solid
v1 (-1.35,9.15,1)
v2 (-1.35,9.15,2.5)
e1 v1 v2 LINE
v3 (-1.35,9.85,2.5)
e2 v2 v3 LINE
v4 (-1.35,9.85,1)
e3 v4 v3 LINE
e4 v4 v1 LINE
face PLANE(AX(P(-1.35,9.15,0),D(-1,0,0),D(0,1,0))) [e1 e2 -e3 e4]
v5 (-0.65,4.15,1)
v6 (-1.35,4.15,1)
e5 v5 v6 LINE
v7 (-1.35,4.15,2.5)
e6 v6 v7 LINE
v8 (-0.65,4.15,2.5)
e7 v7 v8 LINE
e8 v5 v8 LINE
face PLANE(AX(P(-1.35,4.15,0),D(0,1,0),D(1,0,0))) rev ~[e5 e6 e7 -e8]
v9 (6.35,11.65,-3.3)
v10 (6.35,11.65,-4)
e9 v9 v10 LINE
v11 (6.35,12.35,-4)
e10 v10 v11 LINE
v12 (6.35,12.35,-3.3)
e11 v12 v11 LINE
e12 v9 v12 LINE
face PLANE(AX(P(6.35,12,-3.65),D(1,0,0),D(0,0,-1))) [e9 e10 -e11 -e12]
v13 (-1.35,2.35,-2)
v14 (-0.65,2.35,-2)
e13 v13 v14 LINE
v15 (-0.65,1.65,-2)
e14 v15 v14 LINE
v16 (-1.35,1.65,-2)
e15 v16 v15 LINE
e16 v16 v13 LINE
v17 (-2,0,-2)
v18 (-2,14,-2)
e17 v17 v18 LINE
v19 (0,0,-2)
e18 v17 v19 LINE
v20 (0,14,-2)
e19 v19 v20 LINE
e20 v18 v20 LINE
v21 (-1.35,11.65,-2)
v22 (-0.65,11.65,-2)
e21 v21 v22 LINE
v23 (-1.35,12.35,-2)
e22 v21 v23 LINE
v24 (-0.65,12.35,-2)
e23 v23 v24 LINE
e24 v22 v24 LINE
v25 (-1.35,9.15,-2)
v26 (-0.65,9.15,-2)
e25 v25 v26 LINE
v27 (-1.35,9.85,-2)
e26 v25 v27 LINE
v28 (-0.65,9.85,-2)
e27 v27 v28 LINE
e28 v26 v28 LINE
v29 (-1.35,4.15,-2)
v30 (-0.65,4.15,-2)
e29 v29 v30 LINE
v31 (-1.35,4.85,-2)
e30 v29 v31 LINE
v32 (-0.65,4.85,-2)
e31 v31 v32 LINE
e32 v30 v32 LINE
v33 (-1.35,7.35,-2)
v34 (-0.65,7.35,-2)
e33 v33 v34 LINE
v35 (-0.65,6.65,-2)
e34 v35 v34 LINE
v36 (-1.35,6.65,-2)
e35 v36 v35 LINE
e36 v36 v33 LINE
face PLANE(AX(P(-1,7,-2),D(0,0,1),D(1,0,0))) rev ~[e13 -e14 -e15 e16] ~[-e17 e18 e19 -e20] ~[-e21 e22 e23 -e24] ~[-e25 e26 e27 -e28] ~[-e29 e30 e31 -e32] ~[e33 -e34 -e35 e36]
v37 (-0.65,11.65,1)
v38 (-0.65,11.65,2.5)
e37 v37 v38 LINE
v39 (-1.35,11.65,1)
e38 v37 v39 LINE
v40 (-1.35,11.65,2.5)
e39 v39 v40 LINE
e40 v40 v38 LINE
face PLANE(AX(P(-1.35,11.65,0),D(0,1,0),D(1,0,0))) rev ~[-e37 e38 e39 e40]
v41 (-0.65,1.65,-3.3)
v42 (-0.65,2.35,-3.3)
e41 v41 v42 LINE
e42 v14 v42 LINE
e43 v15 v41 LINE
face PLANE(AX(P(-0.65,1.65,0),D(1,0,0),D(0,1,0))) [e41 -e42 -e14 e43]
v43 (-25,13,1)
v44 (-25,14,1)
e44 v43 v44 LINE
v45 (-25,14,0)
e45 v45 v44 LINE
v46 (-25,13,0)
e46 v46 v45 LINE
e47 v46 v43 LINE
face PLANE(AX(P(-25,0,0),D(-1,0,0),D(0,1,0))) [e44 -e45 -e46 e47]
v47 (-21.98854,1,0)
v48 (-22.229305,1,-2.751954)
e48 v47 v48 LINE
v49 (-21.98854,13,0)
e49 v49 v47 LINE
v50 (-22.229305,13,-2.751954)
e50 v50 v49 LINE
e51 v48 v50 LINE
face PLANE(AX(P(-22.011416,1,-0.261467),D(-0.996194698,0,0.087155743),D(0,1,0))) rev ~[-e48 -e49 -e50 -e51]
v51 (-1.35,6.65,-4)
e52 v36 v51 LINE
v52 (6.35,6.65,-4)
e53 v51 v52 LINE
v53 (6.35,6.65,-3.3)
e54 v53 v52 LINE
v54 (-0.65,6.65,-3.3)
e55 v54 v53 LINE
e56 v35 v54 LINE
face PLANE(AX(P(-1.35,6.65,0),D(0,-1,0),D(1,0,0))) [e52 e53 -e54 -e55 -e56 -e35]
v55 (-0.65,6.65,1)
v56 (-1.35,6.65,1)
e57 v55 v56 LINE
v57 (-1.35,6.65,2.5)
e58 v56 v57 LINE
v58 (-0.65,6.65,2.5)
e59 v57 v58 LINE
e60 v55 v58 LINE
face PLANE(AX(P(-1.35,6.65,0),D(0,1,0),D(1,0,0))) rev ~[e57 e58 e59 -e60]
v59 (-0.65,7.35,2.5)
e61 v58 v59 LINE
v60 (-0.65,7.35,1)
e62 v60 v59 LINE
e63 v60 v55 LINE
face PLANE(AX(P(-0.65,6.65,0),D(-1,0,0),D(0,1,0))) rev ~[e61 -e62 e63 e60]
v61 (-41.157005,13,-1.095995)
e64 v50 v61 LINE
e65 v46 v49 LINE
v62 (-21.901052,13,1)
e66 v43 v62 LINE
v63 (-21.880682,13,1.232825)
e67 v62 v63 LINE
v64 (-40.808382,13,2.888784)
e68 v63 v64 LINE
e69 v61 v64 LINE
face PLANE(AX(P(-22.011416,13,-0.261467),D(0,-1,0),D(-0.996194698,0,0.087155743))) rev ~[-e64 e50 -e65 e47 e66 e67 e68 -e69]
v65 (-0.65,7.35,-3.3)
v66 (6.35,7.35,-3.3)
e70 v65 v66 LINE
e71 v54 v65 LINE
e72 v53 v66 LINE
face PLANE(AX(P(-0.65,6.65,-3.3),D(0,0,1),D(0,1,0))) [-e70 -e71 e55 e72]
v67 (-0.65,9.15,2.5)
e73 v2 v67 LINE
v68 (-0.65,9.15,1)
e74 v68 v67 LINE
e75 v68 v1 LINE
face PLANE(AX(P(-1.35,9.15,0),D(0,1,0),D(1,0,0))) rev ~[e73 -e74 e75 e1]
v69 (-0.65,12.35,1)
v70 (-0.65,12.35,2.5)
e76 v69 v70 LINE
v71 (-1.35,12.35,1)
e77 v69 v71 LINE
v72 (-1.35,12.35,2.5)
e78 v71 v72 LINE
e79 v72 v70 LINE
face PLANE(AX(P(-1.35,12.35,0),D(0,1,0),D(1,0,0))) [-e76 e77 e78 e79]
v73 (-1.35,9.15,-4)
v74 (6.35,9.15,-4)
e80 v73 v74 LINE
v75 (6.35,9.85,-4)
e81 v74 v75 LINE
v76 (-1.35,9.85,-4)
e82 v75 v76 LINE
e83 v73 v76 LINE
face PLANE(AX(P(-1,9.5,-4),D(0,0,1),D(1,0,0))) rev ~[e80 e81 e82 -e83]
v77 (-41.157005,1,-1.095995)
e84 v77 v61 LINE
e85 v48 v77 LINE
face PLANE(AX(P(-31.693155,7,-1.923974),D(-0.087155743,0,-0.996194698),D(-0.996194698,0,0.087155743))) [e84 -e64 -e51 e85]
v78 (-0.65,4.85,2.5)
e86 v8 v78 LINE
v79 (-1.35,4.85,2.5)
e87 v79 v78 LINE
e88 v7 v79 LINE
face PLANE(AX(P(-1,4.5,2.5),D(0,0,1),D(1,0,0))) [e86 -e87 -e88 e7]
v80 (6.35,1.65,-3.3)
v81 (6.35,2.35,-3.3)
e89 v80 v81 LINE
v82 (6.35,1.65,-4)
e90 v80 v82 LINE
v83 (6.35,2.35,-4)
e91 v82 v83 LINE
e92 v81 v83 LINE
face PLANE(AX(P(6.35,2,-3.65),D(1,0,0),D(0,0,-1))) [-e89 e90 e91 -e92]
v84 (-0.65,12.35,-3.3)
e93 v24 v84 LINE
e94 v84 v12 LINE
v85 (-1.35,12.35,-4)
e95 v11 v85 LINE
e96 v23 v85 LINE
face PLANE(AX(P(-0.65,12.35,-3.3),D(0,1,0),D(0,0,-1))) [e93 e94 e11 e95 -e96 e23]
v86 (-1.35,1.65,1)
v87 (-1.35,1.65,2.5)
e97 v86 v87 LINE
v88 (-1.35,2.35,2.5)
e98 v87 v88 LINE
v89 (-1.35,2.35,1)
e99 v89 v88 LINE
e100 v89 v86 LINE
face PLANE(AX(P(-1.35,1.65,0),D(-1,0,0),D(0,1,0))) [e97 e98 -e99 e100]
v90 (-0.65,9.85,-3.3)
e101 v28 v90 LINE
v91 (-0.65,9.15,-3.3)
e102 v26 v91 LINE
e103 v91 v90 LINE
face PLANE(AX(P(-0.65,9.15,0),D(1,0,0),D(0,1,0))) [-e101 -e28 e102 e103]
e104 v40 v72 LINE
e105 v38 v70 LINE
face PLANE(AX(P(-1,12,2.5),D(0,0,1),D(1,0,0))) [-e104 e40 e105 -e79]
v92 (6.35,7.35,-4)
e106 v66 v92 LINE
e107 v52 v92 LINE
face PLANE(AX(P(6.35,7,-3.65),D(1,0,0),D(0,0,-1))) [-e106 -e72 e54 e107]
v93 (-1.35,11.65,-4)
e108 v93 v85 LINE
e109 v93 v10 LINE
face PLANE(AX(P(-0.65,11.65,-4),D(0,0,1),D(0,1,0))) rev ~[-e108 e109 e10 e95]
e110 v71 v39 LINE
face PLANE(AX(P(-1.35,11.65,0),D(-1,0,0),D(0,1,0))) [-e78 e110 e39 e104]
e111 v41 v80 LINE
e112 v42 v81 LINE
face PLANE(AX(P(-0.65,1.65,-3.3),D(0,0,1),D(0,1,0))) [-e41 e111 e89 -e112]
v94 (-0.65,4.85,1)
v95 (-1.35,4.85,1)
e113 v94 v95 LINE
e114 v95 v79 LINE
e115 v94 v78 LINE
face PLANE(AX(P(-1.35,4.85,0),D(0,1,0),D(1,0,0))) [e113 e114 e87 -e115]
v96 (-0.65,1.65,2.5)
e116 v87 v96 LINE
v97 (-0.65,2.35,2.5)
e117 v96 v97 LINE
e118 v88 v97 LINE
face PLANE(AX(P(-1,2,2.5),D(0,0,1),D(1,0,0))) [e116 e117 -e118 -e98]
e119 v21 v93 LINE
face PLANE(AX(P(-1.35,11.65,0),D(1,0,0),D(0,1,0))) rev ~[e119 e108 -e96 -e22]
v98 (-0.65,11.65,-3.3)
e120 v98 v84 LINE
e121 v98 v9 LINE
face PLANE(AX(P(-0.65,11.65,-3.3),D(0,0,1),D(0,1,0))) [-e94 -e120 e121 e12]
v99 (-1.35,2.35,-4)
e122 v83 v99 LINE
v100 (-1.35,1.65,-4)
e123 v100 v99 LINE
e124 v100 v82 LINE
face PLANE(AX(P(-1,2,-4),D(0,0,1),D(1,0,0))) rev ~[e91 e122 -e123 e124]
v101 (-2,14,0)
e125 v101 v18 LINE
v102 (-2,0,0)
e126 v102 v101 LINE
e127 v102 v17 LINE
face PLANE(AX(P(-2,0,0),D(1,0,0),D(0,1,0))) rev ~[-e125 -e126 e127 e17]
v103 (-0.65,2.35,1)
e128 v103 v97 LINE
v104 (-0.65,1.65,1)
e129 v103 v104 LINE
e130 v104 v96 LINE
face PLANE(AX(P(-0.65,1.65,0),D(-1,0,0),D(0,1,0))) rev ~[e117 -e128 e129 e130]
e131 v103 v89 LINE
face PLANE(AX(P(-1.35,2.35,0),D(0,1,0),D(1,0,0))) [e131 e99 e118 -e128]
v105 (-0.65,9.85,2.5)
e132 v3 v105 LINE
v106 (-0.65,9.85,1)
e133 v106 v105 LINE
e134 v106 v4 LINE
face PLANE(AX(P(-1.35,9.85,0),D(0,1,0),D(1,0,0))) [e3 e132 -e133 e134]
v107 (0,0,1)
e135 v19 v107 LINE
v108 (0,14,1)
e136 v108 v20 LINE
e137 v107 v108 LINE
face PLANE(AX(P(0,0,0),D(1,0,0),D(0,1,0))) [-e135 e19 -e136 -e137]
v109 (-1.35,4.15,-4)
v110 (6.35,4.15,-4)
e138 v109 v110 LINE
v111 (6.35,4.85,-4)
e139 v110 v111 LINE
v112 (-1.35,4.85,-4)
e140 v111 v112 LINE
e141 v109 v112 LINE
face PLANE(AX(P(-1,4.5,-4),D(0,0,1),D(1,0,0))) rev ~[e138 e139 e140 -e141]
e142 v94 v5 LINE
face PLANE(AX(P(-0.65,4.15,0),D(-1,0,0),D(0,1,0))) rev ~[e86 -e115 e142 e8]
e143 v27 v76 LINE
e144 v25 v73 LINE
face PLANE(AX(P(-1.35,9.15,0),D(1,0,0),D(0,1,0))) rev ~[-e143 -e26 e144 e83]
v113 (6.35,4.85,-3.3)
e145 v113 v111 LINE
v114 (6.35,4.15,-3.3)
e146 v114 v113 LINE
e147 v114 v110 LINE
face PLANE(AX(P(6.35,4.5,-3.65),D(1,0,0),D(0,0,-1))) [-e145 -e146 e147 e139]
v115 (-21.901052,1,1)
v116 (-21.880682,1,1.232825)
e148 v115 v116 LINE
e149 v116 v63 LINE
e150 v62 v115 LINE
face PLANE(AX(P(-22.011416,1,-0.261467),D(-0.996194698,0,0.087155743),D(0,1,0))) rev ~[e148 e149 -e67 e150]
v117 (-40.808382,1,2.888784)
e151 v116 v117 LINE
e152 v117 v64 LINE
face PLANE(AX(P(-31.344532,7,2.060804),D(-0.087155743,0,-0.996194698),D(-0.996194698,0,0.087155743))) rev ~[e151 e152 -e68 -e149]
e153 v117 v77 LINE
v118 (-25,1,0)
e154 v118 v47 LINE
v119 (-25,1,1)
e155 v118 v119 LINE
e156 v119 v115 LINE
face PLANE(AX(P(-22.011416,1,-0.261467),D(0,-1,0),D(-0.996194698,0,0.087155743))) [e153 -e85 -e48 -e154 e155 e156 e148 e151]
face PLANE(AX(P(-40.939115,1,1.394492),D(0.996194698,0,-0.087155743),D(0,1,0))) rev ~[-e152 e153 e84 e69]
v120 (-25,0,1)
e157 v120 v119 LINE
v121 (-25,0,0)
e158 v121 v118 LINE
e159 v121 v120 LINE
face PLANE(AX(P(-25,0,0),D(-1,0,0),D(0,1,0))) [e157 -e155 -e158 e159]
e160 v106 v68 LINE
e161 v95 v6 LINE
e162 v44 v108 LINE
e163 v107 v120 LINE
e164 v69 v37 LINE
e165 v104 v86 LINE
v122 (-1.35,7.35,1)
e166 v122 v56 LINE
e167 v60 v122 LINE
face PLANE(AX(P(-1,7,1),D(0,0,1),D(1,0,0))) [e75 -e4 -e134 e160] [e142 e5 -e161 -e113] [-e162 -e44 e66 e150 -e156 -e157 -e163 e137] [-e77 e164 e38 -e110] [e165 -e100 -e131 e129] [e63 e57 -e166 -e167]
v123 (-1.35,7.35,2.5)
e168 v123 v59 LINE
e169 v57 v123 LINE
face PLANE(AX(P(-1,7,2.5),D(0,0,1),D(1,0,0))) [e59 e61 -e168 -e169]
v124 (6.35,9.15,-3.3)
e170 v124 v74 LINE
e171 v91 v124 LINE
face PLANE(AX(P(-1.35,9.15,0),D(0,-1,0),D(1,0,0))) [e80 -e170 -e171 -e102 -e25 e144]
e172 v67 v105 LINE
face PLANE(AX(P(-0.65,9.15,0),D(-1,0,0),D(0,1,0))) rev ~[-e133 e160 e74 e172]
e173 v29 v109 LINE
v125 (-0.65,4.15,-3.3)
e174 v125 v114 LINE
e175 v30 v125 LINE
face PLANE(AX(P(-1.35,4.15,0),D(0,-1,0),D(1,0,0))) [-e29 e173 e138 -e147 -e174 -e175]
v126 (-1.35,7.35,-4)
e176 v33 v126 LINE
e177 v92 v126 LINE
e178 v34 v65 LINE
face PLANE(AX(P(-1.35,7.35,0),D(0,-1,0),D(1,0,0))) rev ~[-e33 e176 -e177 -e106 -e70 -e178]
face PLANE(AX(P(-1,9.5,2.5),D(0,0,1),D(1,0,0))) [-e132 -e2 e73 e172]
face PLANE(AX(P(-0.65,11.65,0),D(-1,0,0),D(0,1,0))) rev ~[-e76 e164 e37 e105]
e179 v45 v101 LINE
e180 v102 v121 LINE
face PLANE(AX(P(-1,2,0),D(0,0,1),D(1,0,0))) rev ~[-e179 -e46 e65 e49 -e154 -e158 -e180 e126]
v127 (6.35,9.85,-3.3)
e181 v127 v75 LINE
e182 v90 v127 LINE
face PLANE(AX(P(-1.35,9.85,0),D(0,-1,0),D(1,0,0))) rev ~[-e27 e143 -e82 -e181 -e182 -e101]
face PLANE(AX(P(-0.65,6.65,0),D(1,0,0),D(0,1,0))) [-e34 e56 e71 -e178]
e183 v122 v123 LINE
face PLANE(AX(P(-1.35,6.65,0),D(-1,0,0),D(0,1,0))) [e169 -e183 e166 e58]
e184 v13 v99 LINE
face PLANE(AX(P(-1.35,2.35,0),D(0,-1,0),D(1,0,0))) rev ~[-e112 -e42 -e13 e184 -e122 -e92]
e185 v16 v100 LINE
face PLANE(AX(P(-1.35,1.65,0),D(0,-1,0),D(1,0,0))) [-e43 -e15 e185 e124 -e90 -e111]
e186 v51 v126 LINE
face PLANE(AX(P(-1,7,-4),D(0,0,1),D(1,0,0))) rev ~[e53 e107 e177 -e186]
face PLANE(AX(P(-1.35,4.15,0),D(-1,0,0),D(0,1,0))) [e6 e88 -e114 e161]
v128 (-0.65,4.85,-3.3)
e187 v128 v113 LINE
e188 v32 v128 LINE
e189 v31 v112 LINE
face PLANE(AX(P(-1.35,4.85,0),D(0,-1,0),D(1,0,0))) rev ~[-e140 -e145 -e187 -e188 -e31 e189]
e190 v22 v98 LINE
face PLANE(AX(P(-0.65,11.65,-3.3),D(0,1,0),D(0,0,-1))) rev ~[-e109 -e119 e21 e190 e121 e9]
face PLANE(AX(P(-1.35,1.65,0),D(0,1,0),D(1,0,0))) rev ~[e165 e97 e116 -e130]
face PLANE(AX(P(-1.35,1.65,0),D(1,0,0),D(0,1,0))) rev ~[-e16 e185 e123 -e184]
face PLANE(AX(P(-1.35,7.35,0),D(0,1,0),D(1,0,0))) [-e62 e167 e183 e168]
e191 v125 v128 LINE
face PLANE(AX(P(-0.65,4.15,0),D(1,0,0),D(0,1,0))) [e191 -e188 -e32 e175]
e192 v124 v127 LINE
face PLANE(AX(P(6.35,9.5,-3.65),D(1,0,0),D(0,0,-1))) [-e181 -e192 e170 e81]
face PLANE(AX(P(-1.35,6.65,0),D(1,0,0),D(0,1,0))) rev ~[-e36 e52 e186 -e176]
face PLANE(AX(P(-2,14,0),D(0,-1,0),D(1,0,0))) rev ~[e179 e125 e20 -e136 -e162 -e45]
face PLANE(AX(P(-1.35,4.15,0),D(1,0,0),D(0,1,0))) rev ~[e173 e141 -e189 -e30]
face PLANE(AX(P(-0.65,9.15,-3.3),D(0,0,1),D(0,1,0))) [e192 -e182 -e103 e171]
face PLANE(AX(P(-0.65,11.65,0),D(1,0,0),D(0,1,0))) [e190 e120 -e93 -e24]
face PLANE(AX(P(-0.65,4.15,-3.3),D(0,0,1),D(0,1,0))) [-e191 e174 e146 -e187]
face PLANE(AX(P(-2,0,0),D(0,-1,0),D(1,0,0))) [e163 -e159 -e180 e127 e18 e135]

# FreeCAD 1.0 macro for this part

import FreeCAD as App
import Part
import Sketcher
from FreeCAD import Vector

doc = App.newDocument("Part")
body = doc.addObject("PartDesign::Body", "Body")

# Sketch on XY plane
sketch1 = body.newObject("Sketcher::SketchObject", "Sketch")
sketch1.AttachmentSupport = (doc.getObject("XY_Plane"), [""])
sketch1.MapMode = "FlatFace"
sketch1.addGeometry([
    Part.LineSegment(Vector(-25, 14, 0), Vector(-25, 0, 0)),
    Part.LineSegment(Vector(-25, 0, 0), Vector(0, 0, 0)),
    Part.LineSegment(Vector(0, 0, 0), Vector(0, 14, 0)),
    Part.LineSegment(Vector(0, 14, 0), Vector(-25, 14, 0)),
], False)
sketch1.addConstraint([
    Sketcher.Constraint("Coincident", 0, 2, 1, 1),
    Sketcher.Constraint("Coincident", 1, 2, 2, 1),
    Sketcher.Constraint("Coincident", 2, 2, 3, 1),
    Sketcher.Constraint("Coincident", 3, 2, 0, 1),
    Sketcher.Constraint("Vertical", 0),
    Sketcher.Constraint("Horizontal", 1),
    Sketcher.Constraint("Vertical", 2),
    Sketcher.Constraint("Horizontal", 3),
    Sketcher.Constraint("Coincident", 1, 2, -1, 1),
    Sketcher.Constraint("DistanceX", 1, 1, 1, 2, 25.0),
    Sketcher.Constraint("DistanceY", 0, 2, 0, 1, 14.0),
])
pad1 = body.newObject("PartDesign::Pad", "Pad")
pad1.Profile = sketch1
pad1.Length = 1

# Sketch on XY plane
sketch2 = body.newObject("Sketcher::SketchObject", "Sketch001")
sketch2.AttachmentSupport = (doc.getObject("XY_Plane"), [""])
sketch2.MapMode = "FlatFace"
sketch2.addGeometry([
    Part.LineSegment(Vector(-2, 14, 0), Vector(-2, 0, 0)),  # 0
    Part.LineSegment(Vector(-2, 0, 0), Vector(0, 0, 0)),  # 1
    Part.LineSegment(Vector(0, 0, 0), Vector(0, 14, 0)),  # 2
    Part.LineSegment(Vector(0, 14, 0), Vector(-2, 14, 0)),  # 3
    Part.LineSegment(Vector(-0.7, 1.6, 0), Vector(-1.4, 1.6, 0)),  # 4
    Part.LineSegment(Vector(-1.4, 1.6, 0), Vector(-1.4, 2.4, 0)),  # 5
    Part.LineSegment(Vector(-1.4, 2.4, 0), Vector(-0.7, 2.4, 0)),  # 6
    Part.LineSegment(Vector(-0.7, 2.4, 0), Vector(-0.7, 1.6, 0)),  # 7
    Part.LineSegment(Vector(-0.7, 4.2, 0), Vector(-1.4, 4.2, 0)),  # 8
    Part.LineSegment(Vector(-1.4, 4.2, 0), Vector(-1.4, 4.8, 0)),  # 9
    Part.LineSegment(Vector(-1.4, 4.8, 0), Vector(-0.7, 4.8, 0)),  # 10
    Part.LineSegment(Vector(-0.7, 4.8, 0), Vector(-0.7, 4.2, 0)),  # 11
    Part.LineSegment(Vector(-0.7, 6.7, 0), Vector(-1.4, 6.7, 0)),  # 12
    Part.LineSegment(Vector(-1.4, 6.7, 0), Vector(-1.4, 7.3, 0)),  # 13
    Part.LineSegment(Vector(-1.4, 7.3, 0), Vector(-0.7, 7.3, 0)),  # 14
    Part.LineSegment(Vector(-0.7, 7.3, 0), Vector(-0.7, 6.7, 0)),  # 15
    Part.LineSegment(Vector(-0.7, 9.2, 0), Vector(-1.4, 9.2, 0)),  # 16
    Part.LineSegment(Vector(-1.4, 9.2, 0), Vector(-1.4, 9.8, 0)),  # 17
    Part.LineSegment(Vector(-1.4, 9.8, 0), Vector(-0.7, 9.8, 0)),  # 18
    Part.LineSegment(Vector(-0.7, 9.8, 0), Vector(-0.7, 9.2, 0)),  # 19
    Part.LineSegment(Vector(-0.7, 11.7, 0), Vector(-1.4, 11.7, 0)),  # 20
    Part.LineSegment(Vector(-1.4, 11.7, 0), Vector(-1.4, 12.3, 0)),  # 21
    Part.LineSegment(Vector(-1.4, 12.3, 0), Vector(-0.7, 12.3, 0)),  # 22
    Part.LineSegment(Vector(-0.7, 12.3, 0), Vector(-0.7, 11.7, 0)),  # 23
], False)
sketch2.addConstraint([
    Sketcher.Constraint("Coincident", 0, 2, 1, 1),
    Sketcher.Constraint("Coincident", 1, 2, 2, 1),
    Sketcher.Constraint("Coincident", 2, 2, 3, 1),
    Sketcher.Constraint("Coincident", 3, 2, 0, 1),
    Sketcher.Constraint("Coincident", 4, 2, 5, 1),
    Sketcher.Constraint("Coincident", 5, 2, 6, 1),
    Sketcher.Constraint("Coincident", 6, 2, 7, 1),
    Sketcher.Constraint("Coincident", 7, 2, 4, 1),
    Sketcher.Constraint("Coincident", 8, 2, 9, 1),
    Sketcher.Constraint("Coincident", 9, 2, 10, 1),
    Sketcher.Constraint("Coincident", 10, 2, 11, 1),
    Sketcher.Constraint("Coincident", 11, 2, 8, 1),
    Sketcher.Constraint("Coincident", 12, 2, 13, 1),
    Sketcher.Constraint("Coincident", 13, 2, 14, 1),
    Sketcher.Constraint("Coincident", 14, 2, 15, 1),
    Sketcher.Constraint("Coincident", 15, 2, 12, 1),
    Sketcher.Constraint("Coincident", 16, 2, 17, 1),
    Sketcher.Constraint("Coincident", 17, 2, 18, 1),
    Sketcher.Constraint("Coincident", 18, 2, 19, 1),
    Sketcher.Constraint("Coincident", 19, 2, 16, 1),
    Sketcher.Constraint("Coincident", 20, 2, 21, 1),
    Sketcher.Constraint("Coincident", 21, 2, 22, 1),
    Sketcher.Constraint("Coincident", 22, 2, 23, 1),
    Sketcher.Constraint("Coincident", 23, 2, 20, 1),
    Sketcher.Constraint("Vertical", 0),
    Sketcher.Constraint("Horizontal", 1),
    Sketcher.Constraint("Vertical", 2),
    Sketcher.Constraint("Horizontal", 3),
    Sketcher.Constraint("Horizontal", 4),
    Sketcher.Constraint("Vertical", 5),
    Sketcher.Constraint("Horizontal", 6),
    Sketcher.Constraint("Vertical", 7),
    Sketcher.Constraint("Horizontal", 8),
    Sketcher.Constraint("Vertical", 9),
    Sketcher.Constraint("Horizontal", 10),
    Sketcher.Constraint("Vertical", 11),
    Sketcher.Constraint("Horizontal", 12),
    Sketcher.Constraint("Vertical", 13),
    Sketcher.Constraint("Horizontal", 14),
    Sketcher.Constraint("Vertical", 15),
    Sketcher.Constraint("Horizontal", 16),
    Sketcher.Constraint("Vertical", 17),
    Sketcher.Constraint("Horizontal", 18),
    Sketcher.Constraint("Vertical", 19),
    Sketcher.Constraint("Horizontal", 20),
    Sketcher.Constraint("Vertical", 21),
    Sketcher.Constraint("Horizontal", 22),
    Sketcher.Constraint("Vertical", 23),
    Sketcher.Constraint("Coincident", 1, 2, -1, 1),
    Sketcher.Constraint("Vertical", 5, 2, 8, 2),
    Sketcher.Constraint("Vertical", 7, 2, 10, 2),
    Sketcher.Constraint("Vertical", 9, 2, 12, 2),
    Sketcher.Constraint("Vertical", 11, 2, 14, 2),
    Sketcher.Constraint("Vertical", 13, 2, 16, 2),
    Sketcher.Constraint("Vertical", 15, 2, 18, 2),
    Sketcher.Constraint("Vertical", 17, 2, 20, 2),
    Sketcher.Constraint("Vertical", 19, 2, 22, 2),
    Sketcher.Constraint("Equal", 22, 5),
    Sketcher.Constraint("Equal", 7, 9),
    Sketcher.Constraint("Equal", 11, 13),
    Sketcher.Constraint("Equal", 15, 17),
    Sketcher.Constraint("Equal", 19, 21),
    Sketcher.Constraint("DistanceX", 1, 1, 1, 2, 2.0),
    Sketcher.Constraint("DistanceY", 0, 2, 0, 1, 14.0),
    Sketcher.Constraint("DistanceX", 4, 2, 4, 1, 0.7),
    Sketcher.Constraint("DistanceY", 5, 2, 8, 2, 1.8),
    Sketcher.Constraint("DistanceY", 9, 2, 12, 2, 1.8),
    Sketcher.Constraint("DistanceY", 13, 2, 16, 2, 1.8),
    Sketcher.Constraint("DistanceY", 17, 2, 20, 2, 1.8),
    Sketcher.Constraint("DistanceX", 4, 2, -1, 1, 1.35),
    Sketcher.Constraint("DistanceY", -1, 1, 4, 2, 1.65),
])
pad2 = body.newObject("PartDesign::Pad", "Pad001")
pad2.Profile = sketch2
pad2.Length = 2
pad2.Reversed = True

# Sketch on XY plane
sketch3 = body.newObject("Sketcher::SketchObject", "Sketch002")
sketch3.AttachmentSupport = (doc.getObject("XY_Plane"), [""])
sketch3.MapMode = "FlatFace"
sketch3.addGeometry([
    Part.LineSegment(Vector(-1.4, 12.3, 0), Vector(-1.4, 11.7, 0)),  # 0
    Part.LineSegment(Vector(-1.4, 11.7, 0), Vector(-0.7, 11.7, 0)),  # 1
    Part.LineSegment(Vector(-0.7, 11.7, 0), Vector(-0.7, 12.3, 0)),  # 2
    Part.LineSegment(Vector(-0.7, 12.3, 0), Vector(-1.4, 12.3, 0)),  # 3
    Part.LineSegment(Vector(-1.4, 9.8, 0), Vector(-1.4, 9.2, 0)),  # 4
    Part.LineSegment(Vector(-1.4, 9.2, 0), Vector(-0.7, 9.2, 0)),  # 5
    Part.LineSegment(Vector(-0.7, 9.2, 0), Vector(-0.7, 9.8, 0)),  # 6
    Part.LineSegment(Vector(-0.7, 9.8, 0), Vector(-1.4, 9.8, 0)),  # 7
    Part.LineSegment(Vector(-1.4, 7.3, 0), Vector(-1.4, 6.7, 0)),  # 8
    Part.LineSegment(Vector(-1.4, 6.7, 0), Vector(-0.7, 6.7, 0)),  # 9
    Part.LineSegment(Vector(-0.7, 6.7, 0), Vector(-0.7, 7.3, 0)),  # 10
    Part.LineSegment(Vector(-0.7, 7.3, 0), Vector(-1.4, 7.3, 0)),  # 11
    Part.LineSegment(Vector(-1.4, 4.8, 0), Vector(-1.4, 4.2, 0)),  # 12
    Part.LineSegment(Vector(-1.4, 4.2, 0), Vector(-0.7, 4.2, 0)),  # 13
    Part.LineSegment(Vector(-0.7, 4.2, 0), Vector(-0.7, 4.8, 0)),  # 14
    Part.LineSegment(Vector(-0.7, 4.8, 0), Vector(-1.4, 4.8, 0)),  # 15
    Part.LineSegment(Vector(-1.4, 2.4, 0), Vector(-1.4, 1.6, 0)),  # 16
    Part.LineSegment(Vector(-1.4, 1.6, 0), Vector(-0.7, 1.6, 0)),  # 17
    Part.LineSegment(Vector(-0.7, 1.6, 0), Vector(-0.7, 2.4, 0)),  # 18
    Part.LineSegment(Vector(-0.7, 2.4, 0), Vector(-1.4, 2.4, 0)),  # 19
], False)
sketch3.addConstraint([
    Sketcher.Constraint("Coincident", 0, 2, 1, 1),
    Sketcher.Constraint("Coincident", 1, 2, 2, 1),
    Sketcher.Constraint("Coincident", 2, 2, 3, 1),
    Sketcher.Constraint("Coincident", 3, 2, 0, 1),
    Sketcher.Constraint("Coincident", 4, 2, 5, 1),
    Sketcher.Constraint("Coincident", 5, 2, 6, 1),
    Sketcher.Constraint("Coincident", 6, 2, 7, 1),
    Sketcher.Constraint("Coincident", 7, 2, 4, 1),
    Sketcher.Constraint("Coincident", 8, 2, 9, 1),
    Sketcher.Constraint("Coincident", 9, 2, 10, 1),
    Sketcher.Constraint("Coincident", 10, 2, 11, 1),
    Sketcher.Constraint("Coincident", 11, 2, 8, 1),
    Sketcher.Constraint("Coincident", 12, 2, 13, 1),
    Sketcher.Constraint("Coincident", 13, 2, 14, 1),
    Sketcher.Constraint("Coincident", 14, 2, 15, 1),
    Sketcher.Constraint("Coincident", 15, 2, 12, 1),
    Sketcher.Constraint("Coincident", 16, 2, 17, 1),
    Sketcher.Constraint("Coincident", 17, 2, 18, 1),
    Sketcher.Constraint("Coincident", 18, 2, 19, 1),
    Sketcher.Constraint("Coincident", 19, 2, 16, 1),
    Sketcher.Constraint("Vertical", 0),
    Sketcher.Constraint("Horizontal", 1),
    Sketcher.Constraint("Vertical", 2),
    Sketcher.Constraint("Horizontal", 3),
    Sketcher.Constraint("Vertical", 4),
    Sketcher.Constraint("Horizontal", 5),
    Sketcher.Constraint("Vertical", 6),
    Sketcher.Constraint("Horizontal", 7),
    Sketcher.Constraint("Vertical", 8),
    Sketcher.Constraint("Horizontal", 9),
    Sketcher.Constraint("Vertical", 10),
    Sketcher.Constraint("Horizontal", 11),
    Sketcher.Constraint("Vertical", 12),
    Sketcher.Constraint("Horizontal", 13),
    Sketcher.Constraint("Vertical", 14),
    Sketcher.Constraint("Horizontal", 15),
    Sketcher.Constraint("Vertical", 16),
    Sketcher.Constraint("Horizontal", 17),
    Sketcher.Constraint("Vertical", 18),
    Sketcher.Constraint("Horizontal", 19),
    Sketcher.Constraint("Vertical", 3, 2, 4, 2),
    Sketcher.Constraint("Vertical", 2, 2, 5, 2),
    Sketcher.Constraint("Vertical", 7, 2, 8, 2),
    Sketcher.Constraint("Vertical", 6, 2, 9, 2),
    Sketcher.Constraint("Vertical", 11, 2, 12, 2),
    Sketcher.Constraint("Vertical", 10, 2, 13, 2),
    Sketcher.Constraint("Vertical", 15, 2, 16, 2),
    Sketcher.Constraint("Vertical", 14, 2, 17, 2),
    Sketcher.Constraint("Equal", 19, 0),
    Sketcher.Constraint("Equal", 2, 4),
    Sketcher.Constraint("Equal", 6, 8),
    Sketcher.Constraint("Equal", 10, 12),
    Sketcher.Constraint("Equal", 14, 16),
    Sketcher.Constraint("DistanceX", 1, 1, 1, 2, 0.7),
    Sketcher.Constraint("DistanceY", 8, 2, 0, 2, 5.0),
    Sketcher.Constraint("DistanceY", 12, 2, 4, 2, 5.0),
    Sketcher.Constraint("DistanceY", 16, 2, 8, 2, 5.0),
    Sketcher.Constraint("DistanceY", 4, 2, 0, 2, 2.5),
    Sketcher.Constraint("DistanceX", 0, 2, -1, 1, 1.35),
    Sketcher.Constraint("DistanceY", -1, 1, 0, 2, 11.65),
])
pad3 = body.newObject("PartDesign::Pad", "Pad002")
pad3.Profile = sketch3
pad3.Length = 2.5

# Sketch on XY plane
sketch4 = body.newObject("Sketcher::SketchObject", "Sketch003")
sketch4.AttachmentSupport = (doc.getObject("XY_Plane"), [""])
sketch4.MapMode = "FlatFace"
sketch4.addGeometry([
    Part.LineSegment(Vector(-1.4, 12.3, 0), Vector(-1.4, 11.7, 0)),  # 0
    Part.LineSegment(Vector(-1.4, 11.7, 0), Vector(-0.7, 11.7, 0)),  # 1
    Part.LineSegment(Vector(-0.7, 11.7, 0), Vector(-0.7, 12.3, 0)),  # 2
    Part.LineSegment(Vector(-0.7, 12.3, 0), Vector(-1.4, 12.3, 0)),  # 3
    Part.LineSegment(Vector(-1.4, 9.8, 0), Vector(-1.4, 9.2, 0)),  # 4
    Part.LineSegment(Vector(-1.4, 9.2, 0), Vector(-0.7, 9.2, 0)),  # 5
    Part.LineSegment(Vector(-0.7, 9.2, 0), Vector(-0.7, 9.8, 0)),  # 6
    Part.LineSegment(Vector(-0.7, 9.8, 0), Vector(-1.4, 9.8, 0)),  # 7
    Part.LineSegment(Vector(-1.4, 7.3, 0), Vector(-1.4, 6.7, 0)),  # 8
    Part.LineSegment(Vector(-1.4, 6.7, 0), Vector(-0.7, 6.7, 0)),  # 9
    Part.LineSegment(Vector(-0.7, 6.7, 0), Vector(-0.7, 7.3, 0)),  # 10
    Part.LineSegment(Vector(-0.7, 7.3, 0), Vector(-1.4, 7.3, 0)),  # 11
    Part.LineSegment(Vector(-1.4, 4.8, 0), Vector(-1.4, 4.2, 0)),  # 12
    Part.LineSegment(Vector(-1.4, 4.2, 0), Vector(-0.7, 4.2, 0)),  # 13
    Part.LineSegment(Vector(-0.7, 4.2, 0), Vector(-0.7, 4.8, 0)),  # 14
    Part.LineSegment(Vector(-0.7, 4.8, 0), Vector(-1.4, 4.8, 0)),  # 15
    Part.LineSegment(Vector(-1.4, 2.4, 0), Vector(-1.4, 1.6, 0)),  # 16
    Part.LineSegment(Vector(-1.4, 1.6, 0), Vector(-0.7, 1.6, 0)),  # 17
    Part.LineSegment(Vector(-0.7, 1.6, 0), Vector(-0.7, 2.4, 0)),  # 18
    Part.LineSegment(Vector(-0.7, 2.4, 0), Vector(-1.4, 2.4, 0)),  # 19
], False)
sketch4.addConstraint([
    Sketcher.Constraint("Coincident", 0, 2, 1, 1),
    Sketcher.Constraint("Coincident", 1, 2, 2, 1),
    Sketcher.Constraint("Coincident", 2, 2, 3, 1),
    Sketcher.Constraint("Coincident", 3, 2, 0, 1),
    Sketcher.Constraint("Coincident", 4, 2, 5, 1),
    Sketcher.Constraint("Coincident", 5, 2, 6, 1),
    Sketcher.Constraint("Coincident", 6, 2, 7, 1),
    Sketcher.Constraint("Coincident", 7, 2, 4, 1),
    Sketcher.Constraint("Coincident", 8, 2, 9, 1),
    Sketcher.Constraint("Coincident", 9, 2, 10, 1),
    Sketcher.Constraint("Coincident", 10, 2, 11, 1),
    Sketcher.Constraint("Coincident", 11, 2, 8, 1),
    Sketcher.Constraint("Coincident", 12, 2, 13, 1),
    Sketcher.Constraint("Coincident", 13, 2, 14, 1),
    Sketcher.Constraint("Coincident", 14, 2, 15, 1),
    Sketcher.Constraint("Coincident", 15, 2, 12, 1),
    Sketcher.Constraint("Coincident", 16, 2, 17, 1),
    Sketcher.Constraint("Coincident", 17, 2, 18, 1),
    Sketcher.Constraint("Coincident", 18, 2, 19, 1),
    Sketcher.Constraint("Coincident", 19, 2, 16, 1),
    Sketcher.Constraint("Vertical", 0),
    Sketcher.Constraint("Horizontal", 1),
    Sketcher.Constraint("Vertical", 2),
    Sketcher.Constraint("Horizontal", 3),
    Sketcher.Constraint("Vertical", 4),
    Sketcher.Constraint("Horizontal", 5),
    Sketcher.Constraint("Vertical", 6),
    Sketcher.Constraint("Horizontal", 7),
    Sketcher.Constraint("Vertical", 8),
    Sketcher.Constraint("Horizontal", 9),
    Sketcher.Constraint("Vertical", 10),
    Sketcher.Constraint("Horizontal", 11),
    Sketcher.Constraint("Vertical", 12),
    Sketcher.Constraint("Horizontal", 13),
    Sketcher.Constraint("Vertical", 14),
    Sketcher.Constraint("Horizontal", 15),
    Sketcher.Constraint("Vertical", 16),
    Sketcher.Constraint("Horizontal", 17),
    Sketcher.Constraint("Vertical", 18),
    Sketcher.Constraint("Horizontal", 19),
    Sketcher.Constraint("Vertical", 3, 2, 4, 2),
    Sketcher.Constraint("Vertical", 2, 2, 5, 2),
    Sketcher.Constraint("Vertical", 7, 2, 8, 2),
    Sketcher.Constraint("Vertical", 6, 2, 9, 2),
    Sketcher.Constraint("Vertical", 11, 2, 12, 2),
    Sketcher.Constraint("Vertical", 10, 2, 13, 2),
    Sketcher.Constraint("Vertical", 15, 2, 16, 2),
    Sketcher.Constraint("Vertical", 14, 2, 17, 2),
    Sketcher.Constraint("Equal", 19, 0),
    Sketcher.Constraint("Equal", 2, 4),
    Sketcher.Constraint("Equal", 6, 8),
    Sketcher.Constraint("Equal", 10, 12),
    Sketcher.Constraint("Equal", 14, 16),
    Sketcher.Constraint("DistanceX", 1, 1, 1, 2, 0.7),
    Sketcher.Constraint("DistanceY", 8, 2, 0, 2, 5.0),
    Sketcher.Constraint("DistanceY", 12, 2, 4, 2, 5.0),
    Sketcher.Constraint("DistanceY", 16, 2, 8, 2, 5.0),
    Sketcher.Constraint("DistanceY", 4, 2, 0, 2, 2.5),
    Sketcher.Constraint("DistanceX", 0, 2, -1, 1, 1.35),
    Sketcher.Constraint("DistanceY", -1, 1, 0, 2, 11.65),
])
pad4 = body.newObject("PartDesign::Pad", "Pad003")
pad4.Profile = sketch4
pad4.Length = 4
pad4.Reversed = True

# Sketch on YZ plane
sketch5 = body.newObject("Sketcher::SketchObject", "Sketch004")
sketch5.AttachmentSupport = (doc.getObject("YZ_Plane"), [""])
sketch5.MapMode = "FlatFace"
sketch5.AttachmentOffset = App.Placement(Vector(0, 0, -0.65), App.Rotation())
sketch5.addGeometry([
    Part.LineSegment(Vector(12.3, -3.3, 0), Vector(11.7, -3.3, 0)),  # 0
    Part.LineSegment(Vector(11.7, -3.3, 0), Vector(11.7, -4, 0)),  # 1
    Part.LineSegment(Vector(11.7, -4, 0), Vector(12.3, -4, 0)),  # 2
    Part.LineSegment(Vector(12.3, -4, 0), Vector(12.3, -3.3, 0)),  # 3
    Part.LineSegment(Vector(9.8, -3.3, 0), Vector(9.2, -3.3, 0)),  # 4
    Part.LineSegment(Vector(9.2, -3.3, 0), Vector(9.2, -4, 0)),  # 5
    Part.LineSegment(Vector(9.2, -4, 0), Vector(9.8, -4, 0)),  # 6
    Part.LineSegment(Vector(9.8, -4, 0), Vector(9.8, -3.3, 0)),  # 7
    Part.LineSegment(Vector(7.3, -3.3, 0), Vector(6.7, -3.3, 0)),  # 8
    Part.LineSegment(Vector(6.7, -3.3, 0), Vector(6.7, -4, 0)),  # 9
    Part.LineSegment(Vector(6.7, -4, 0), Vector(7.3, -4, 0)),  # 10
    Part.LineSegment(Vector(7.3, -4, 0), Vector(7.3, -3.3, 0)),  # 11
    Part.LineSegment(Vector(4.8, -3.3, 0), Vector(4.2, -3.3, 0)),  # 12
    Part.LineSegment(Vector(4.2, -3.3, 0), Vector(4.2, -4, 0)),  # 13
    Part.LineSegment(Vector(4.2, -4, 0), Vector(4.8, -4, 0)),  # 14
    Part.LineSegment(Vector(4.8, -4, 0), Vector(4.8, -3.3, 0)),  # 15
    Part.LineSegment(Vector(2.4, -3.3, 0), Vector(1.6, -3.3, 0)),  # 16
    Part.LineSegment(Vector(1.6, -3.3, 0), Vector(1.6, -4, 0)),  # 17
    Part.LineSegment(Vector(1.6, -4, 0), Vector(2.4, -4, 0)),  # 18
    Part.LineSegment(Vector(2.4, -4, 0), Vector(2.4, -3.3, 0)),  # 19
], False)
sketch5.addConstraint([
    Sketcher.Constraint("Coincident", 0, 2, 1, 1),
    Sketcher.Constraint("Coincident", 1, 2, 2, 1),
    Sketcher.Constraint("Coincident", 2, 2, 3, 1),
    Sketcher.Constraint("Coincident", 3, 2, 0, 1),
    Sketcher.Constraint("Coincident", 4, 2, 5, 1),
    Sketcher.Constraint("Coincident", 5, 2, 6, 1),
    Sketcher.Constraint("Coincident", 6, 2, 7, 1),
    Sketcher.Constraint("Coincident", 7, 2, 4, 1),
    Sketcher.Constraint("Coincident", 8, 2, 9, 1),
    Sketcher.Constraint("Coincident", 9, 2, 10, 1),
    Sketcher.Constraint("Coincident", 10, 2, 11, 1),
    Sketcher.Constraint("Coincident", 11, 2, 8, 1),
    Sketcher.Constraint("Coincident", 12, 2, 13, 1),
    Sketcher.Constraint("Coincident", 13, 2, 14, 1),
    Sketcher.Constraint("Coincident", 14, 2, 15, 1),
    Sketcher.Constraint("Coincident", 15, 2, 12, 1),
    Sketcher.Constraint("Coincident", 16, 2, 17, 1),
    Sketcher.Constraint("Coincident", 17, 2, 18, 1),
    Sketcher.Constraint("Coincident", 18, 2, 19, 1),
    Sketcher.Constraint("Coincident", 19, 2, 16, 1),
    Sketcher.Constraint("Horizontal", 0),
    Sketcher.Constraint("Vertical", 1),
    Sketcher.Constraint("Horizontal", 2),
    Sketcher.Constraint("Vertical", 3),
    Sketcher.Constraint("Horizontal", 4),
    Sketcher.Constraint("Vertical", 5),
    Sketcher.Constraint("Horizontal", 6),
    Sketcher.Constraint("Vertical", 7),
    Sketcher.Constraint("Horizontal", 8),
    Sketcher.Constraint("Vertical", 9),
    Sketcher.Constraint("Horizontal", 10),
    Sketcher.Constraint("Vertical", 11),
    Sketcher.Constraint("Horizontal", 12),
    Sketcher.Constraint("Vertical", 13),
    Sketcher.Constraint("Horizontal", 14),
    Sketcher.Constraint("Vertical", 15),
    Sketcher.Constraint("Horizontal", 16),
    Sketcher.Constraint("Vertical", 17),
    Sketcher.Constraint("Horizontal", 18),
    Sketcher.Constraint("Vertical", 19),
    Sketcher.Constraint("Horizontal", 3, 2, 4, 2),
    Sketcher.Constraint("Horizontal", 2, 2, 5, 2),
    Sketcher.Constraint("Horizontal", 7, 2, 8, 2),
    Sketcher.Constraint("Horizontal", 6, 2, 9, 2),
    Sketcher.Constraint("Horizontal", 11, 2, 12, 2),
    Sketcher.Constraint("Horizontal", 10, 2, 13, 2),
    Sketcher.Constraint("Horizontal", 15, 2, 16, 2),
    Sketcher.Constraint("Horizontal", 14, 2, 17, 2),
    Sketcher.Constraint("Equal", 2, 4),
    Sketcher.Constraint("Equal", 6, 8),
    Sketcher.Constraint("Equal", 10, 12),
    Sketcher.Constraint("Equal", 14, 16),
    Sketcher.Constraint("Equal", 18, 1),
    Sketcher.Constraint("DistanceX", 0, 2, 0, 1, 0.7),
    Sketcher.Constraint("DistanceY", 1, 2, -1, 1, 4.0),
    Sketcher.Constraint("DistanceX", 8, 2, 0, 2, 5.0),
    Sketcher.Constraint("DistanceX", 12, 2, 4, 2, 5.0),
    Sketcher.Constraint("DistanceX", 16, 2, 8, 2, 5.0),
    Sketcher.Constraint("DistanceX", 4, 2, 0, 2, 2.5),
    Sketcher.Constraint("DistanceX", -1, 1, 0, 2, 11.65),
])
pad5 = body.newObject("PartDesign::Pad", "Pad004")
pad5.Profile = sketch5
pad5.Length = 7
body2 = doc.addObject("PartDesign::Body", "Body001")

# Sketch on an angled plane
sketch6 = body2.newObject("Sketcher::SketchObject", "Sketch005")
sketch6.Placement = App.Placement(Vector(-0.189903, 0, -2.170602), App.Rotation(Vector(-0.996194698, 0, 0.087155743), Vector(0, 1, 0), Vector(-0.087155743, 0, -0.996194698), "ZXY"))
sketch6.addGeometry([
    Part.LineSegment(Vector(22, 13, 0), Vector(22, 1, 0)),
    Part.LineSegment(Vector(22, 1, 0), Vector(41, 1, 0)),
    Part.LineSegment(Vector(41, 1, 0), Vector(41, 13, 0)),
    Part.LineSegment(Vector(41, 13, 0), Vector(22, 13, 0)),
], False)
sketch6.addConstraint([
    Sketcher.Constraint("Coincident", 0, 2, 1, 1),
    Sketcher.Constraint("Coincident", 1, 2, 2, 1),
    Sketcher.Constraint("Coincident", 2, 2, 3, 1),
    Sketcher.Constraint("Coincident", 3, 2, 0, 1),
    Sketcher.Constraint("Vertical", 0),
    Sketcher.Constraint("Horizontal", 1),
    Sketcher.Constraint("Vertical", 2),
    Sketcher.Constraint("Horizontal", 3),
    Sketcher.Constraint("DistanceX", 1, 1, 1, 2, 19.0),
    Sketcher.Constraint("DistanceY", 0, 2, 0, 1, 12.0),
    Sketcher.Constraint("DistanceY", -1, 1, 0, 2, 1.0),
    Sketcher.Constraint("DistanceX", -1, 1, 0, 2, 21.904867),
])
pad6 = body2.newObject("PartDesign::Pad", "Pad005")
pad6.Profile = sketch6
pad6.Length = 2.5
body.AllowCompound = True
doc.recompute()

boolean = body.newObject("PartDesign::Boolean", "Boolean")
boolean.Type = "Fuse"
boolean.addObjects([body2])

# Sketch on an angled plane
sketch7 = body.newObject("Sketcher::SketchObject", "Sketch006")
sketch7.Placement = App.Placement(Vector(-0.189903, 0, -2.170602), App.Rotation(Vector(-0.996194698, 0, 0.087155743), Vector(0, 1, 0), Vector(-0.087155743, 0, -0.996194698), "ZXY"))
sketch7.addGeometry([
    Part.LineSegment(Vector(22, 13, 0), Vector(22, 1, 0)),
    Part.LineSegment(Vector(22, 1, 0), Vector(41, 1, 0)),
    Part.LineSegment(Vector(41, 1, 0), Vector(41, 13, 0)),
    Part.LineSegment(Vector(41, 13, 0), Vector(22, 13, 0)),
], False)
sketch7.addConstraint([
    Sketcher.Constraint("Coincident", 0, 2, 1, 1),
    Sketcher.Constraint("Coincident", 1, 2, 2, 1),
    Sketcher.Constraint("Coincident", 2, 2, 3, 1),
    Sketcher.Constraint("Coincident", 3, 2, 0, 1),
    Sketcher.Constraint("Vertical", 0),
    Sketcher.Constraint("Horizontal", 1),
    Sketcher.Constraint("Vertical", 2),
    Sketcher.Constraint("Horizontal", 3),
    Sketcher.Constraint("DistanceX", 1, 1, 1, 2, 19.0),
    Sketcher.Constraint("DistanceY", 0, 2, 0, 1, 12.0),
    Sketcher.Constraint("DistanceY", -1, 1, 0, 2, 1.0),
    Sketcher.Constraint("DistanceX", -1, 1, 0, 2, 21.904867),
])
pad7 = body.newObject("PartDesign::Pad", "Pad006")
pad7.Profile = sketch7
pad7.Length = 1.5
pad7.Reversed = True

doc.recompute()
